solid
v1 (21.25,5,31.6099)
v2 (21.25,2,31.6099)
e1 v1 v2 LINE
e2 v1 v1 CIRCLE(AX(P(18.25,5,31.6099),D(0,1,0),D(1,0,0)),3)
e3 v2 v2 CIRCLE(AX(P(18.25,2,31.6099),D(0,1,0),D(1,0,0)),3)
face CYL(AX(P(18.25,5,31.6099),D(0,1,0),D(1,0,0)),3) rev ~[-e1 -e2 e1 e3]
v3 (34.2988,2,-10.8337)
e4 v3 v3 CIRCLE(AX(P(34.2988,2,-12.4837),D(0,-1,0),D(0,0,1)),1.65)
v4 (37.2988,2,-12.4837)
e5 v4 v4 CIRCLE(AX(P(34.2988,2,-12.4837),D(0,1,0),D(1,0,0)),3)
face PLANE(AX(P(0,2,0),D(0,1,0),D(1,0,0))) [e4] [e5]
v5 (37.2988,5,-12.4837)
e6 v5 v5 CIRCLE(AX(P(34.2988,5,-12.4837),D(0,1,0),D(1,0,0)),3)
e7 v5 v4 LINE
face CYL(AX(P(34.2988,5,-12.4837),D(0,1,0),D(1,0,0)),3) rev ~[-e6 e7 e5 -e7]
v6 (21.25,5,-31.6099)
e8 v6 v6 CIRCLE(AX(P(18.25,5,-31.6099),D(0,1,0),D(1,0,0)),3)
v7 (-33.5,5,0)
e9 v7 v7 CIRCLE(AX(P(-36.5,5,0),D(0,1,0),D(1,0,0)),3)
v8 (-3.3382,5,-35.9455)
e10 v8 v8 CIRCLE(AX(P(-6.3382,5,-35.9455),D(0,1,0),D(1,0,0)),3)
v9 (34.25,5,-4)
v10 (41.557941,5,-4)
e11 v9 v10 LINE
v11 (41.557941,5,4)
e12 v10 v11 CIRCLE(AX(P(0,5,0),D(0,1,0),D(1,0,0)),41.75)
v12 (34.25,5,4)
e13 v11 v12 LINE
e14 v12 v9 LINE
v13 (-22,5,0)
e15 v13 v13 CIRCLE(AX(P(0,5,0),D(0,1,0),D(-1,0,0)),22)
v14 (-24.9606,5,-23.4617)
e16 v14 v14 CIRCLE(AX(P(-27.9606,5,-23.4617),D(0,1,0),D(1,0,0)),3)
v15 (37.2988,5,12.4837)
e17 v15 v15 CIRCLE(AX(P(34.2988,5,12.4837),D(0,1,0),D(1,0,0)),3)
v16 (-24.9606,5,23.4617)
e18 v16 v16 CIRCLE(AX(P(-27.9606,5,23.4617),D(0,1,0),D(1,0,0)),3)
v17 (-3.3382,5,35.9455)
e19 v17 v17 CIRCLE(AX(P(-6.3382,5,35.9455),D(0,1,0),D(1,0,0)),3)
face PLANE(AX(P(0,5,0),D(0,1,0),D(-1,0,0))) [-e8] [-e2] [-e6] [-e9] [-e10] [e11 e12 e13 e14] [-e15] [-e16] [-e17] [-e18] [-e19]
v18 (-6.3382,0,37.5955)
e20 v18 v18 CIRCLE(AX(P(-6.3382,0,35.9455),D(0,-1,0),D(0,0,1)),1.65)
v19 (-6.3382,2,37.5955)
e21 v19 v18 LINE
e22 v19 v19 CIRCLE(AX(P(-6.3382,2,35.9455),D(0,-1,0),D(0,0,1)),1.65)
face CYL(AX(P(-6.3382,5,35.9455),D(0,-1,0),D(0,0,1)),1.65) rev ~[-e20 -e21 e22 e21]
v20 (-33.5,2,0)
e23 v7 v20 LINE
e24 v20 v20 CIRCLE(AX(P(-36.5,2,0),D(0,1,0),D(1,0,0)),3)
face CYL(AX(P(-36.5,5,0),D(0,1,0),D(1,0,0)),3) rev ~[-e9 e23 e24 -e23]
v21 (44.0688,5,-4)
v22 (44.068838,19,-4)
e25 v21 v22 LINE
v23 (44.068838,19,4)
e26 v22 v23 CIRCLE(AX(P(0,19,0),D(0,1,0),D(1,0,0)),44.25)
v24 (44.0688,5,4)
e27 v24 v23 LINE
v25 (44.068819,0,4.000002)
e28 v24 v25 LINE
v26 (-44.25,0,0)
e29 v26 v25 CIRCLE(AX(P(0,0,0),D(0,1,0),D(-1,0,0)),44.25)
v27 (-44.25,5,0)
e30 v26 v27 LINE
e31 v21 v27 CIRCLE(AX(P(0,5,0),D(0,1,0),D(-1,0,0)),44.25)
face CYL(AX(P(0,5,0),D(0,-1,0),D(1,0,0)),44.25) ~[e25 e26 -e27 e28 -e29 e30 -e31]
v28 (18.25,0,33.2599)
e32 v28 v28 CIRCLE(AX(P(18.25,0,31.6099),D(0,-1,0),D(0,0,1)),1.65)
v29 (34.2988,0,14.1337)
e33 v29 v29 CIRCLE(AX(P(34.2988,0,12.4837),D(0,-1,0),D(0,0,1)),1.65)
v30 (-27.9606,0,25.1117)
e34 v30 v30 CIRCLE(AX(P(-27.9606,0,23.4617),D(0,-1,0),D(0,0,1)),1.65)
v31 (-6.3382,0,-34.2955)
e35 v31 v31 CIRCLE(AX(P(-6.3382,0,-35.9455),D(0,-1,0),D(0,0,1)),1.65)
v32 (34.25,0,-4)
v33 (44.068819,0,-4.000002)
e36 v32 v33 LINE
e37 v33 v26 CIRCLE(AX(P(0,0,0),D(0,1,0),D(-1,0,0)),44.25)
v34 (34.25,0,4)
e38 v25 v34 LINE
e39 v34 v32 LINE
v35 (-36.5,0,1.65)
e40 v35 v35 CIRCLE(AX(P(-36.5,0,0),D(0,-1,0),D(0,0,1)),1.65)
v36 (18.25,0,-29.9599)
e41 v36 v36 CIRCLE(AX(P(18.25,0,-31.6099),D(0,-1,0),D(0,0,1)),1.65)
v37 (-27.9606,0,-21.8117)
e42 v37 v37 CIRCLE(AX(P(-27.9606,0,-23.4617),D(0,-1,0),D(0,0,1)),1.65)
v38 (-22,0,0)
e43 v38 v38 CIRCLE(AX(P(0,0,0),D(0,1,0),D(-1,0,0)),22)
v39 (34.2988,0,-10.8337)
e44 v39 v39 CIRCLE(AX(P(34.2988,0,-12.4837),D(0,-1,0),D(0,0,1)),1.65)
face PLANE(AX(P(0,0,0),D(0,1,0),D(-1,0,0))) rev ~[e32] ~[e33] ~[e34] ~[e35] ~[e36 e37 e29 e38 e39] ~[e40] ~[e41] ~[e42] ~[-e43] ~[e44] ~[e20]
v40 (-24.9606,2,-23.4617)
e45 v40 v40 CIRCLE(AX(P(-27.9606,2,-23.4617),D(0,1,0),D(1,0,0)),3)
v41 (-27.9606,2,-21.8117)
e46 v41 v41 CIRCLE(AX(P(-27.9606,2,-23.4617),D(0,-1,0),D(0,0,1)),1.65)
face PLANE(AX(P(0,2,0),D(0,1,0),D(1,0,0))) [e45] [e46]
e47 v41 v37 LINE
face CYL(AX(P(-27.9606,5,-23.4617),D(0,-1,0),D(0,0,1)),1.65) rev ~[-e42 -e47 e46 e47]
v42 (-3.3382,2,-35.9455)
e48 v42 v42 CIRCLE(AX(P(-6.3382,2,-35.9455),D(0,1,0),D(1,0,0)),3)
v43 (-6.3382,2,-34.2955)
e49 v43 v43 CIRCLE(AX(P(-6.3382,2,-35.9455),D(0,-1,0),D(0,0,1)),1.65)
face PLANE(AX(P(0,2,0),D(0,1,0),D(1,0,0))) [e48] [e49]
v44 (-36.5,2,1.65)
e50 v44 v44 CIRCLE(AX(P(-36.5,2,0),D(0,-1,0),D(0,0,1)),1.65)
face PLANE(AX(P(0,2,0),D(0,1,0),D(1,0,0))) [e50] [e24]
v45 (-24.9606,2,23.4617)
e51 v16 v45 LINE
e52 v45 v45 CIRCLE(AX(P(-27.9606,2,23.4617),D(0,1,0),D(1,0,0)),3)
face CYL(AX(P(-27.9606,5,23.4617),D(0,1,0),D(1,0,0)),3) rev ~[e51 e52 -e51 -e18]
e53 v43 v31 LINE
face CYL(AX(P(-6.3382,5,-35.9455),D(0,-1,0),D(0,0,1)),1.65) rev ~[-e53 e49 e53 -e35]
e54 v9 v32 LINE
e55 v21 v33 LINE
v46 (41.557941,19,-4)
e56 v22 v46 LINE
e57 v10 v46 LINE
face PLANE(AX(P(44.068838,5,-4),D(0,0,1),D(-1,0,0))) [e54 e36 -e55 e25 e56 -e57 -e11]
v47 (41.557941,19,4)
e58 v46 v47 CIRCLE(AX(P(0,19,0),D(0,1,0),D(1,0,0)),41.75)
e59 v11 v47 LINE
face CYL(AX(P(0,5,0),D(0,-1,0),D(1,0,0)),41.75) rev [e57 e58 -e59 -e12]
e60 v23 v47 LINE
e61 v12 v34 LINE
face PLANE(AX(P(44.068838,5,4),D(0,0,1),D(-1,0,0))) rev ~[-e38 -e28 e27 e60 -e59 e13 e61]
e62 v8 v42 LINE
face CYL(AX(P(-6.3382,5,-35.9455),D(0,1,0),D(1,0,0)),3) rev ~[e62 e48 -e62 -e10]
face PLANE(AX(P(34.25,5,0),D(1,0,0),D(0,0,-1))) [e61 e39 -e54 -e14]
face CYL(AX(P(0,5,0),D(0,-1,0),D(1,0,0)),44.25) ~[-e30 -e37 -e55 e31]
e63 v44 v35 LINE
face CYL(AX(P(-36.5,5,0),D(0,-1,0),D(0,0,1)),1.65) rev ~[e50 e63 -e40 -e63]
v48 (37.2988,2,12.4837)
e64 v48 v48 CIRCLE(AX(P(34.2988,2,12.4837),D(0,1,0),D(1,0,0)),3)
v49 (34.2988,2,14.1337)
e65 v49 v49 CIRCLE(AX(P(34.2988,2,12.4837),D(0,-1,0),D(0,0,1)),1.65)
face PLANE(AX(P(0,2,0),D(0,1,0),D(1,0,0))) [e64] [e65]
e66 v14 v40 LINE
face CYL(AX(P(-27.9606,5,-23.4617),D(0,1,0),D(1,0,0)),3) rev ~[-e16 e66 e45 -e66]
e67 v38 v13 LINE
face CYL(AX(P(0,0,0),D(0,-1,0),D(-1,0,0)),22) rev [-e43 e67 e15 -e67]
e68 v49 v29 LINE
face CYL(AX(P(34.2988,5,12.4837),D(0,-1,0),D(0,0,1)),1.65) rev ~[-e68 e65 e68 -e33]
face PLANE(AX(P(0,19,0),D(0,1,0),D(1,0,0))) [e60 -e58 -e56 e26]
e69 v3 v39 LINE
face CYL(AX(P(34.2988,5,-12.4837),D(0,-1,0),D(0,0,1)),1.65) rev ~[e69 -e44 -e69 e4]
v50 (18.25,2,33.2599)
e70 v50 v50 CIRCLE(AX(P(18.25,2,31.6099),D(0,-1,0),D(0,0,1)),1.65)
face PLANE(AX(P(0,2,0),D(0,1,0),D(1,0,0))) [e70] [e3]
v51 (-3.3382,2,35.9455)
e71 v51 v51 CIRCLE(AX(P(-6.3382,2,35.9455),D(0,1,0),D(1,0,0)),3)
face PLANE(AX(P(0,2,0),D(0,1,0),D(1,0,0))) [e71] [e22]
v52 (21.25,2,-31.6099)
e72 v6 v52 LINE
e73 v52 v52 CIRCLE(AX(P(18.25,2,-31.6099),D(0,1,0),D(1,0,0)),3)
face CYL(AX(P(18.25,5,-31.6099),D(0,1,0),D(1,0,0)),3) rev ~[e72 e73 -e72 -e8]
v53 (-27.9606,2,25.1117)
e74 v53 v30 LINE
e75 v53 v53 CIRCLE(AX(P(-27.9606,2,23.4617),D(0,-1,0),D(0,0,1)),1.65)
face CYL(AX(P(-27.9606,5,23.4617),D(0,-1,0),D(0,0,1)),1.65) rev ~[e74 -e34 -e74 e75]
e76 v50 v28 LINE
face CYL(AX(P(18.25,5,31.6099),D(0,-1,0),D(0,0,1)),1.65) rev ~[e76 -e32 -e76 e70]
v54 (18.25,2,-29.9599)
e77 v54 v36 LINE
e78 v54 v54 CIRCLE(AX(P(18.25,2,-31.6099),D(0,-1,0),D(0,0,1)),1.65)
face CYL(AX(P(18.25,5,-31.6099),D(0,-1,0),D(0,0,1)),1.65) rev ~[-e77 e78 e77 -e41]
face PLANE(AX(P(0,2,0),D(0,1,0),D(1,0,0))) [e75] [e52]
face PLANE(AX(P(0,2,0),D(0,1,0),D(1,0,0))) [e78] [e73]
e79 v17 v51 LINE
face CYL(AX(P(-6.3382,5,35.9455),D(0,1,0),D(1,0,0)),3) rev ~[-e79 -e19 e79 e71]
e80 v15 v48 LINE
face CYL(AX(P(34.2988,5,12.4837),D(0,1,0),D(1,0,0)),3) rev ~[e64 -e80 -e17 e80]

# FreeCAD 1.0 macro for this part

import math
import FreeCAD as App
import Part
import Sketcher
from FreeCAD import Vector
Q = App.Units.Quantity

doc = App.newDocument("Part")
params = doc.addObject("Spreadsheet::Sheet", "Params")
for row, (alias, value) in enumerate([
    ("sketch1_diameter", "44 mm"),
    ("sketch1_diameter2", "88.5 mm"),
    ("pad1_length", "5 mm"),
    ("sketch2_diameter", "3.3 mm"),
    ("hole_diameter", "3.3 mm"),
    ("sketch3_diameter", "6 mm"),
    ("pocket1_length", "3 mm"),
    ("sketch4_radius", "41.75 mm"),
    ("sketch4_radius2", "44.25 mm"),
    ("pad2_length", "14 mm"),
    ("sketch5_height", "8 mm"),
    ("sketch5_radius", "44.25 mm"),
    ("pocket2_length", "14 mm"),
], start=1):
    params.set(f"A{row}", alias)
    params.set(f"B{row}", "=" + value)
    params.setAlias(f"B{row}", alias)

body = doc.addObject("PartDesign::Body", "Body")

# Sketch on XZ plane
sketch1 = body.newObject("Sketcher::SketchObject", "Sketch")
sketch1.AttachmentSupport = (doc.getObject("XZ_Plane"), [""])
sketch1.MapMode = "FlatFace"
sketch1.addGeometry([
    Part.Circle(Vector(0, 0, 0), Vector(0, 0, 1), 44),
    Part.Circle(Vector(0, 0, 0), Vector(0, 0, 1), 22),
], False)
sketch1.addConstraint([
    Sketcher.Constraint("Coincident", 0, 3, -1, 1),
    Sketcher.Constraint("Coincident", 1, 3, -1, 1),
    Sketcher.Constraint("Diameter", 1, Q("44 mm")),
    Sketcher.Constraint("Diameter", 0, Q("88.5 mm")),
])
sketch1.setExpression("Constraints[2]", "Params.sketch1_diameter")
sketch1.setExpression("Constraints[3]", "Params.sketch1_diameter2")
pad1 = body.newObject("PartDesign::Pad", "Pad")
pad1.Profile = sketch1
pad1.setExpression("Length", "Params.pad1_length")
pad1.Reversed = True

# Sketch on XZ plane
sketch2 = body.newObject("Sketcher::SketchObject", "Sketch001")
sketch2.AttachmentSupport = (doc.getObject("XZ_Plane"), [""])
sketch2.MapMode = "FlatFace"
sketch2.AttachmentOffset = App.Placement(Vector(0, 0, -5), App.Rotation())
sketch2.addGeometry([
    Part.Circle(Vector(-36.5, 0, 0), Vector(0, 0, 1), 1.6),  # 0
    Part.Circle(Vector(-28, 23.5, 0), Vector(0, 0, 1), 1.6),  # 1
    Part.Circle(Vector(-6.3, 35.9, 0), Vector(0, 0, 1), 1.6),  # 2
    Part.Circle(Vector(18.2, 31.6, 0), Vector(0, 0, 1), 1.6),  # 3
    Part.Circle(Vector(34.3, 12.5, 0), Vector(0, 0, 1), 1.6),  # 4
    Part.Circle(Vector(34.3, -12.5, 0), Vector(0, 0, 1), 1.6),  # 5
    Part.Circle(Vector(18.2, -31.6, 0), Vector(0, 0, 1), 1.6),  # 6
    Part.Circle(Vector(-6.3, -35.9, 0), Vector(0, 0, 1), 1.6),  # 7
    Part.Circle(Vector(-28, -23.5, 0), Vector(0, 0, 1), 1.6),  # 8
], False)
sketch2.addConstraint([
    Sketcher.Constraint("Equal", 0, 1),
    Sketcher.Constraint("Equal", 1, 2),
    Sketcher.Constraint("Equal", 2, 3),
    Sketcher.Constraint("Equal", 3, 4),
    Sketcher.Constraint("Equal", 4, 5),
    Sketcher.Constraint("Equal", 5, 6),
    Sketcher.Constraint("Equal", 6, 7),
    Sketcher.Constraint("Equal", 7, 8),
    Sketcher.Constraint("Symmetric", 4, 3, 5, 3, -1),
    Sketcher.Constraint("Symmetric", 3, 3, 6, 3, -1),
    Sketcher.Constraint("Symmetric", 2, 3, 7, 3, -1),
    Sketcher.Constraint("Symmetric", 1, 3, 8, 3, -1),
    Sketcher.Constraint("PointOnObject", 0, 3, -1),
    Sketcher.Constraint("Diameter", 0, Q("3.3 mm")),
    Sketcher.Constraint("DistanceX", 0, 3, -1, 1, Q("36.5 mm")),
    Sketcher.Constraint("DistanceX", -1, 1, 3, 3, Q("18.25 mm")),
    Sketcher.Constraint("DistanceY", -1, 1, 3, 3, Q("31.61 mm")),
    Sketcher.Constraint("DistanceX", 2, 3, 4, 3, Q("40.637 mm")),
    Sketcher.Constraint("DistanceY", 4, 3, 1, 3, Q("10.978 mm")),
    Sketcher.Constraint("DistanceX", 1, 3, -1, 1, Q("27.9606 mm")),
    Sketcher.Constraint("DistanceY", -1, 1, 1, 3, Q("23.4617 mm")),
    Sketcher.Constraint("DistanceX", 2, 3, -1, 1, Q("6.3382 mm")),
    Sketcher.Constraint("DistanceY", -1, 1, 2, 3, Q("35.9455 mm")),
])
sketch2.setExpression("Constraints[13]", "Params.sketch2_diameter")
doc.recompute()
hole = body.newObject("PartDesign::Hole", "Hole")
hole.Profile = sketch2
hole.ThreadType = "None"
hole.setExpression("Diameter", "Params.hole_diameter")
hole.DepthType = "ThroughAll"
hole.Reversed = True

# Sketch on XZ plane
sketch3 = body.newObject("Sketcher::SketchObject", "Sketch002")
sketch3.AttachmentSupport = (doc.getObject("XZ_Plane"), [""])
sketch3.MapMode = "FlatFace"
sketch3.AttachmentOffset = App.Placement(Vector(0, 0, -5), App.Rotation())
sketch3.addGeometry([
    Part.Circle(Vector(-36.5, 0, 0), Vector(0, 0, 1), 3),  # 0
    Part.Circle(Vector(-28, 23.5, 0), Vector(0, 0, 1), 3),  # 1
    Part.Circle(Vector(-6.3, 35.9, 0), Vector(0, 0, 1), 3),  # 2
    Part.Circle(Vector(18.2, 31.6, 0), Vector(0, 0, 1), 3),  # 3
    Part.Circle(Vector(34.3, 12.5, 0), Vector(0, 0, 1), 3),  # 4
    Part.Circle(Vector(34.3, -12.5, 0), Vector(0, 0, 1), 3),  # 5
    Part.Circle(Vector(18.2, -31.6, 0), Vector(0, 0, 1), 3),  # 6
    Part.Circle(Vector(-6.3, -35.9, 0), Vector(0, 0, 1), 3),  # 7
    Part.Circle(Vector(-28, -23.5, 0), Vector(0, 0, 1), 3),  # 8
], False)
sketch3.addConstraint([
    Sketcher.Constraint("Equal", 0, 1),
    Sketcher.Constraint("Equal", 1, 2),
    Sketcher.Constraint("Equal", 2, 3),
    Sketcher.Constraint("Equal", 3, 4),
    Sketcher.Constraint("Equal", 4, 5),
    Sketcher.Constraint("Equal", 5, 6),
    Sketcher.Constraint("Equal", 6, 7),
    Sketcher.Constraint("Equal", 7, 8),
    Sketcher.Constraint("Symmetric", 4, 3, 5, 3, -1),
    Sketcher.Constraint("Symmetric", 3, 3, 6, 3, -1),
    Sketcher.Constraint("Symmetric", 2, 3, 7, 3, -1),
    Sketcher.Constraint("Symmetric", 1, 3, 8, 3, -1),
    Sketcher.Constraint("PointOnObject", 0, 3, -1),
    Sketcher.Constraint("Diameter", 0, Q("6 mm")),
    Sketcher.Constraint("DistanceX", 0, 3, -1, 1, Q("36.5 mm")),
    Sketcher.Constraint("DistanceX", -1, 1, 3, 3, Q("18.25 mm")),
    Sketcher.Constraint("DistanceY", -1, 1, 3, 3, Q("31.61 mm")),
    Sketcher.Constraint("DistanceX", 2, 3, 4, 3, Q("40.637 mm")),
    Sketcher.Constraint("DistanceY", 4, 3, 1, 3, Q("10.978 mm")),
    Sketcher.Constraint("DistanceX", 1, 3, -1, 1, Q("27.9606 mm")),
    Sketcher.Constraint("DistanceY", -1, 1, 1, 3, Q("23.4617 mm")),
    Sketcher.Constraint("DistanceX", 2, 3, -1, 1, Q("6.3382 mm")),
    Sketcher.Constraint("DistanceY", -1, 1, 2, 3, Q("35.9455 mm")),
])
sketch3.setExpression("Constraints[13]", "Params.sketch3_diameter")
pocket1 = body.newObject("PartDesign::Pocket", "Pocket")
pocket1.Profile = sketch3
pocket1.setExpression("Length", "Params.pocket1_length")
pocket1.Reversed = True

# Sketch on XZ plane
sketch4 = body.newObject("Sketcher::SketchObject", "Sketch003")
sketch4.AttachmentSupport = (doc.getObject("XZ_Plane"), [""])
sketch4.MapMode = "FlatFace"
sketch4.AttachmentOffset = App.Placement(Vector(0, 0, -5), App.Rotation())
sketch4.addGeometry([
    Part.ArcOfCircle(Part.Circle(Vector(0, 0, 0), Vector(0, 0, 1), 41.8), math.radians(5), math.radians(355)),
    Part.LineSegment(Vector(41.6, -4, 0), Vector(44.1, -4, 0)),
    Part.ArcOfCircle(Part.Circle(Vector(0, 0, 0), Vector(0, 0, 1), 44.2), math.radians(5), math.radians(355)),
    Part.LineSegment(Vector(44.1, 4, 0), Vector(41.6, 4, 0)),
], False)
sketch4.addConstraint([
    Sketcher.Constraint("Coincident", 0, 2, 1, 1),
    Sketcher.Constraint("Coincident", 1, 2, 2, 2),
    Sketcher.Constraint("Coincident", 2, 1, 3, 1),
    Sketcher.Constraint("Coincident", 3, 2, 0, 1),
    Sketcher.Constraint("Horizontal", 1),
    Sketcher.Constraint("Horizontal", 3),
    Sketcher.Constraint("Coincident", 0, 3, -1, 1),
    Sketcher.Constraint("Coincident", 2, 3, -1, 1),
    Sketcher.Constraint("Vertical", 1, 2, 2, 1),
    Sketcher.Constraint("DistanceY", 0, 2, -1, 1, Q("4 mm")),
    Sketcher.Constraint("Radius", 0, Q("41.75 mm")),
    Sketcher.Constraint("Radius", 2, Q("44.25 mm")),
])
sketch4.setExpression("Constraints[10]", "Params.sketch4_radius")
sketch4.setExpression("Constraints[11]", "Params.sketch4_radius2")
pad2 = body.newObject("PartDesign::Pad", "Pad001")
pad2.Profile = sketch4
pad2.setExpression("Length", "Params.pad2_length")
pad2.Reversed = True

# Sketch on XZ plane
sketch5 = body.newObject("Sketcher::SketchObject", "Sketch004")
sketch5.AttachmentSupport = (doc.getObject("XZ_Plane"), [""])
sketch5.MapMode = "FlatFace"
sketch5.AttachmentOffset = App.Placement(Vector(0, 0, -5), App.Rotation())
sketch5.addGeometry([
    Part.LineSegment(Vector(34, -4, 0), Vector(34, 4, 0)),
    Part.LineSegment(Vector(34, 4, 0), Vector(44, 4, 0)),
    Part.ArcOfCircle(Part.Circle(Vector(0, 0, 0), Vector(0, 0, 1), 44), math.radians(-5.19), math.radians(5.19)),
    Part.LineSegment(Vector(44, -4, 0), Vector(34, -4, 0)),
], False)
sketch5.addConstraint([
    Sketcher.Constraint("Coincident", 0, 2, 1, 1),
    Sketcher.Constraint("Coincident", 1, 2, 2, 2),
    Sketcher.Constraint("Coincident", 2, 1, 3, 1),
    Sketcher.Constraint("Coincident", 3, 2, 0, 1),
    Sketcher.Constraint("Vertical", 0),
    Sketcher.Constraint("Horizontal", 1),
    Sketcher.Constraint("Horizontal", 3),
    Sketcher.Constraint("Coincident", 2, 3, -1, 1),
    Sketcher.Constraint("Vertical", 1, 2, 2, 1),
    Sketcher.Constraint("DistanceY", 0, 1, 0, 2, Q("8 mm")),
    Sketcher.Constraint("Radius", 2, Q("44.25 mm")),
    Sketcher.Constraint("DistanceX", -1, 1, 0, 2, Q("34.25 mm")),
])
sketch5.setExpression("Constraints[9]", "Params.sketch5_height")
sketch5.setExpression("Constraints[10]", "Params.sketch5_radius")
pocket2 = body.newObject("PartDesign::Pocket", "Pocket001")
pocket2.Profile = sketch5
pocket2.setExpression("Length", "Params.pocket2_length")
pocket2.Reversed = True

doc.recompute()
